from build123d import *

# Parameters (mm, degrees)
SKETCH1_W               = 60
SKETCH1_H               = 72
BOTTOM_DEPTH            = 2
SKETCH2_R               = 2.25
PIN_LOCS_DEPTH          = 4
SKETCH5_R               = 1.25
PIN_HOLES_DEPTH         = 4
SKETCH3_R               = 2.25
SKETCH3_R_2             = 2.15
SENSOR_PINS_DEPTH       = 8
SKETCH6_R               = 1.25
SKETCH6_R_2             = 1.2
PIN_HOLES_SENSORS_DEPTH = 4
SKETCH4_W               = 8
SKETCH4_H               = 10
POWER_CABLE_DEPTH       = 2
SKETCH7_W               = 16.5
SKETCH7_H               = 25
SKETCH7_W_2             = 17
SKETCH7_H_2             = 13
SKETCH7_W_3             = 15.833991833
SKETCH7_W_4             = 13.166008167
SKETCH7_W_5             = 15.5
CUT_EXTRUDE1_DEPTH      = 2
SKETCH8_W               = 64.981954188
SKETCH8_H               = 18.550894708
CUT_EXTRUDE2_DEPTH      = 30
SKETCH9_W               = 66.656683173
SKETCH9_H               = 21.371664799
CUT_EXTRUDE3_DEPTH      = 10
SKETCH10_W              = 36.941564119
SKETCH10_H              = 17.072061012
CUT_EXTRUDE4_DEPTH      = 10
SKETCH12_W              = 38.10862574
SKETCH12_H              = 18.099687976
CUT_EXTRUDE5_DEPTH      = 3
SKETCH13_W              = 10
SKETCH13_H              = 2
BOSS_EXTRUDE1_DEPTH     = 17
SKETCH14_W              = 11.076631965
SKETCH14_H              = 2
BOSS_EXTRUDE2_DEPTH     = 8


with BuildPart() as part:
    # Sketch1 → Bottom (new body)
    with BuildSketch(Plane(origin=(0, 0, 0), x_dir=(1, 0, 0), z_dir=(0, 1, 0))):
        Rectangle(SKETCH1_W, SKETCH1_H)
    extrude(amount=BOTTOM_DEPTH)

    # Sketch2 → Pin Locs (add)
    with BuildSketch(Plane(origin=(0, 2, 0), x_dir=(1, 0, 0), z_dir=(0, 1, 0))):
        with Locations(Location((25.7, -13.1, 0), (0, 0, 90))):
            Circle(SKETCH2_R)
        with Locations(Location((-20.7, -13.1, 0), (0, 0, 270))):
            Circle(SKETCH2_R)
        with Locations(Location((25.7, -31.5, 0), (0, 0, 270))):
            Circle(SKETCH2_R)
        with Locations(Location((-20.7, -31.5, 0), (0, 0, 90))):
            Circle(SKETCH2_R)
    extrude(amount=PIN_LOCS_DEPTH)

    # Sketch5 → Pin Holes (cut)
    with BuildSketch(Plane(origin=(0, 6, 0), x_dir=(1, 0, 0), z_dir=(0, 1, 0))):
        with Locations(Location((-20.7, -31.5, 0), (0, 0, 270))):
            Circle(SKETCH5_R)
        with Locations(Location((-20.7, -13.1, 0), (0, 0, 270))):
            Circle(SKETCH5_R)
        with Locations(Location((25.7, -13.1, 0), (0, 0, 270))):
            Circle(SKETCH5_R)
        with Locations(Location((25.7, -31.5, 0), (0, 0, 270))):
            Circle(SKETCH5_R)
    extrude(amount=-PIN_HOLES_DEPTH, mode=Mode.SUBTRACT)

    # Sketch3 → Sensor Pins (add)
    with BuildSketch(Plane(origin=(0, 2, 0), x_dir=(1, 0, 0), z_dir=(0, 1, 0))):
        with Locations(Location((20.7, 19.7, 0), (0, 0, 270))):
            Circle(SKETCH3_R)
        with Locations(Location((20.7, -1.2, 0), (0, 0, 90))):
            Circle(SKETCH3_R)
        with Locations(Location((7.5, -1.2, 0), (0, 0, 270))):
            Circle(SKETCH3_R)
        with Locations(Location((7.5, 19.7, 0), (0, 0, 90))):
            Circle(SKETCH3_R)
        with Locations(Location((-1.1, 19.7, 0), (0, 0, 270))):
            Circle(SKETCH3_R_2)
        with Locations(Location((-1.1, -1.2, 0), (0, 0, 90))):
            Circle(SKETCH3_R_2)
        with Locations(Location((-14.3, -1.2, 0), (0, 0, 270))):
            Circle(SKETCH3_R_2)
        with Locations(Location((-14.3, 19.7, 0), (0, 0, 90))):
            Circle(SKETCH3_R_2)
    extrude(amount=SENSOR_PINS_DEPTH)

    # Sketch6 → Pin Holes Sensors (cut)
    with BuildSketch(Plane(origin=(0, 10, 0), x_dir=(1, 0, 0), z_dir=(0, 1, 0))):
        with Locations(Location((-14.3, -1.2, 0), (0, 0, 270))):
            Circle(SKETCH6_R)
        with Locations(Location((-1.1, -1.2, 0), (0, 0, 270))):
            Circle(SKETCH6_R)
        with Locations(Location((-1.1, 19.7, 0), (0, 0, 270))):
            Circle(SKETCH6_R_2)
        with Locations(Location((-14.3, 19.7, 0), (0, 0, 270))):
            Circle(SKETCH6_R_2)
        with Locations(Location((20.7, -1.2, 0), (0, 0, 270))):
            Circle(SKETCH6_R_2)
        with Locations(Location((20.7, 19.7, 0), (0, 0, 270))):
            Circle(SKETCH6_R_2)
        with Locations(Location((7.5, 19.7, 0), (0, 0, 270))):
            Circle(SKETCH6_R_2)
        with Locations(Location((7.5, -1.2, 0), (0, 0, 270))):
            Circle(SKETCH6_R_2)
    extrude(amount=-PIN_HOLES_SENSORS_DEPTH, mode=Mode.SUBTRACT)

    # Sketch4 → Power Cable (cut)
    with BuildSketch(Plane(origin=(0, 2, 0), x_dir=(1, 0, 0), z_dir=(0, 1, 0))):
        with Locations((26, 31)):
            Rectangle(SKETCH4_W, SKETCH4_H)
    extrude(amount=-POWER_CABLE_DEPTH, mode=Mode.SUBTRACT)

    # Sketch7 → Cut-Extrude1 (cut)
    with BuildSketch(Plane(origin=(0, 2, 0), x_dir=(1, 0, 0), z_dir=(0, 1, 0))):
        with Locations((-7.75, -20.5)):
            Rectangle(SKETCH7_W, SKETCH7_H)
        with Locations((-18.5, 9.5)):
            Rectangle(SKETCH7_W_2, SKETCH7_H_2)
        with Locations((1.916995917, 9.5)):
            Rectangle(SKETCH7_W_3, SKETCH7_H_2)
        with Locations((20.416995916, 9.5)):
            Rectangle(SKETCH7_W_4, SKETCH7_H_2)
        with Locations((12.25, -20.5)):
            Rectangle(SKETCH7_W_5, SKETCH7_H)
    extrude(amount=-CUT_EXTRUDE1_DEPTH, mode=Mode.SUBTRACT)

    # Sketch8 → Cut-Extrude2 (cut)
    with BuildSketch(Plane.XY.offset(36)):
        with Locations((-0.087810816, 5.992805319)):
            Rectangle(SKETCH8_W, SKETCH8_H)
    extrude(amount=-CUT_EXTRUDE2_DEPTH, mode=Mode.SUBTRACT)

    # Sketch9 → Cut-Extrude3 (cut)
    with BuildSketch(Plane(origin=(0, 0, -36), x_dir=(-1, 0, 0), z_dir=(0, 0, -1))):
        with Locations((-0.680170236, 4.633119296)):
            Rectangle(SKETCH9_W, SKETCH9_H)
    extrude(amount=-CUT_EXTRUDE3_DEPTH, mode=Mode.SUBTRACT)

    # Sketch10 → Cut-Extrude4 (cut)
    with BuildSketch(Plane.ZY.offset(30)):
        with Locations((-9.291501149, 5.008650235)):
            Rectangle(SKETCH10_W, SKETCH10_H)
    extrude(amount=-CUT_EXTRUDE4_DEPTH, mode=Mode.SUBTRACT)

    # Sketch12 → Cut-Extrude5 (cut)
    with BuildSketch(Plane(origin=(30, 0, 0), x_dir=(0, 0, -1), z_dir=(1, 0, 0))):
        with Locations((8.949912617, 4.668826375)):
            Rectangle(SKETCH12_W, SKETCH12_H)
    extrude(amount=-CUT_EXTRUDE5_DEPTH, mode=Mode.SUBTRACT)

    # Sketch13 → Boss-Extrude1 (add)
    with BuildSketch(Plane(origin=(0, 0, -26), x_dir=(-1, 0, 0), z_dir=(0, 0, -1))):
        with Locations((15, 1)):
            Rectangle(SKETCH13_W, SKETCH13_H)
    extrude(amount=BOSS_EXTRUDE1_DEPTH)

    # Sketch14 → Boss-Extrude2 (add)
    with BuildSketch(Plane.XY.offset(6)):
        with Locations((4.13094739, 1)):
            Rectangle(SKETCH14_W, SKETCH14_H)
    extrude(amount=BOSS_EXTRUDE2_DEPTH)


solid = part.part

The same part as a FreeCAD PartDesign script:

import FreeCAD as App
import Part
import Sketcher
Q = App.Units.Quantity


def add_polygon(sketch, points):
    """Adds a closed chain of lines whose ends are joined by coincident constraints."""
    first, n = sketch.GeometryCount, len(points)
    for a, b in zip(points, points[1:] + points[:1]):
        sketch.addGeometry(Part.LineSegment(App.Vector(*a, 0), App.Vector(*b, 0)), False)
    for i in range(n):
        sketch.addConstraint(Sketcher.Constraint("Coincident", first + i, 2, first + (i + 1) % n, 1))

doc = App.newDocument("Part")
body = doc.addObject("PartDesign::Body", "Body")

sketch1 = body.newObject("Sketcher::SketchObject", "Sketch")
sketch1.AttachmentSupport = (doc.getObject("XZ_Plane"), [""])
sketch1.MapMode = "FlatFace"
add_polygon(sketch1, [(-30, -36), (-30, 36), (30, 36), (30, -36)])
sketch1.addConstraint([
    Sketcher.Constraint("Vertical", 0),
    Sketcher.Constraint("Horizontal", 1),
    Sketcher.Constraint("Vertical", 2),
    Sketcher.Constraint("Horizontal", 3),
    Sketcher.Constraint("Symmetric", 0, 2, 2, 2, -1, 1),
    Sketcher.Constraint("DistanceX", 1, 1, 1, 2, Q("60 mm")),
    Sketcher.Constraint("DistanceY", 0, 1, 0, 2, Q("72 mm")),
])
pad1 = body.newObject("PartDesign::Pad", "Pad")
pad1.Profile = sketch1
pad1.Length = 2
pad1.Reversed = True

sketch2 = body.newObject("Sketcher::SketchObject", "Sketch001")
sketch2.AttachmentSupport = (doc.getObject("XZ_Plane"), [""])
sketch2.MapMode = "FlatFace"
sketch2.AttachmentOffset = App.Placement(App.Vector(0, 0, -2), App.Rotation())
sketch2.addGeometry([
    Part.Circle(App.Vector(25.7, 13.1, 0), App.Vector(0, 0, 1), 2.2),
    Part.Circle(App.Vector(-20.7, 13.1, 0), App.Vector(0, 0, 1), 2.2),
    Part.Circle(App.Vector(25.7, 31.5, 0), App.Vector(0, 0, 1), 2.2),
    Part.Circle(App.Vector(-20.7, 31.5, 0), App.Vector(0, 0, 1), 2.2),
], False)
sketch2.addConstraint([
    Sketcher.Constraint("Equal", 0, 1),
    Sketcher.Constraint("Equal", 1, 2),
    Sketcher.Constraint("Equal", 2, 3),
    Sketcher.Constraint("Horizontal", 0, 3, 1, 3),
    Sketcher.Constraint("Horizontal", 2, 3, 3, 3),
    Sketcher.Constraint("Vertical", 0, 3, 2, 3),
    Sketcher.Constraint("Vertical", 1, 3, 3, 3),
    Sketcher.Constraint("Diameter", 0, Q("4.5 mm")),
    Sketcher.Constraint("DistanceX", -1, 1, 0, 3, Q("25.7 mm")),
    Sketcher.Constraint("DistanceY", -1, 1, 0, 3, Q("13.1 mm")),
    Sketcher.Constraint("DistanceX", 1, 3, -1, 1, Q("20.7 mm")),
    Sketcher.Constraint("DistanceY", -1, 1, 2, 3, Q("31.5 mm")),
])
pad2 = body.newObject("PartDesign::Pad", "Pad001")
pad2.Profile = sketch2
pad2.Length = 4
pad2.Reversed = True

sketch3 = body.newObject("Sketcher::SketchObject", "Sketch002")
sketch3.AttachmentSupport = (doc.getObject("XZ_Plane"), [""])
sketch3.MapMode = "FlatFace"
sketch3.AttachmentOffset = App.Placement(App.Vector(0, 0, -6), App.Rotation())
sketch3.addGeometry([
    Part.Circle(App.Vector(-20.7, 31.5, 0), App.Vector(0, 0, 1), 1.2),
    Part.Circle(App.Vector(-20.7, 13.1, 0), App.Vector(0, 0, 1), 1.2),
    Part.Circle(App.Vector(25.7, 13.1, 0), App.Vector(0, 0, 1), 1.2),
    Part.Circle(App.Vector(25.7, 31.5, 0), App.Vector(0, 0, 1), 1.2),
], False)
sketch3.addConstraint([
    Sketcher.Constraint("Equal", 0, 1),
    Sketcher.Constraint("Equal", 1, 2),
    Sketcher.Constraint("Equal", 2, 3),
    Sketcher.Constraint("Horizontal", 1, 3, 2, 3),
    Sketcher.Constraint("Horizontal", 0, 3, 3, 3),
    Sketcher.Constraint("Vertical", 0, 3, 1, 3),
    Sketcher.Constraint("Vertical", 2, 3, 3, 3),
    Sketcher.Constraint("Diameter", 0, Q("2.5 mm")),
    Sketcher.Constraint("DistanceX", 0, 3, -1, 1, Q("20.7 mm")),
    Sketcher.Constraint("DistanceY", -1, 1, 0, 3, Q("31.5 mm")),
    Sketcher.Constraint("DistanceY", -1, 1, 1, 3, Q("13.1 mm")),
    Sketcher.Constraint("DistanceX", -1, 1, 2, 3, Q("25.7 mm")),
])
pocket1 = body.newObject("PartDesign::Pocket", "Pocket")
pocket1.Profile = sketch3
pocket1.Length = 4
pocket1.Reversed = True

sketch4 = body.newObject("Sketcher::SketchObject", "Sketch003")
sketch4.AttachmentSupport = (doc.getObject("XZ_Plane"), [""])
sketch4.MapMode = "FlatFace"
sketch4.AttachmentOffset = App.Placement(App.Vector(0, 0, -2), App.Rotation())
sketch4.addGeometry([
    Part.Circle(App.Vector(20.7, -19.7, 0), App.Vector(0, 0, 1), 2.2),
    Part.Circle(App.Vector(20.7, 1.2, 0), App.Vector(0, 0, 1), 2.2),
    Part.Circle(App.Vector(7.5, 1.2, 0), App.Vector(0, 0, 1), 2.2),
    Part.Circle(App.Vector(7.5, -19.7, 0), App.Vector(0, 0, 1), 2.2),
    Part.Circle(App.Vector(-1.1, -19.7, 0), App.Vector(0, 0, 1), 2.1),
    Part.Circle(App.Vector(-1.1, 1.2, 0), App.Vector(0, 0, 1), 2.1),
    Part.Circle(App.Vector(-14.3, 1.2, 0), App.Vector(0, 0, 1), 2.1),
    Part.Circle(App.Vector(-14.3, -19.7, 0), App.Vector(0, 0, 1), 2.1),
], False)
sketch4.addConstraint([
    Sketcher.Constraint("Equal", 0, 1),
    Sketcher.Constraint("Equal", 1, 2),
    Sketcher.Constraint("Equal", 2, 3),
    Sketcher.Constraint("Equal", 4, 5),
    Sketcher.Constraint("Equal", 5, 6),
    Sketcher.Constraint("Equal", 6, 7),
    Sketcher.Constraint("Horizontal", 1, 3, 2, 3),
    Sketcher.Constraint("Horizontal", 0, 3, 3, 3),
    Sketcher.Constraint("Horizontal", 3, 3, 4, 3),
    Sketcher.Constraint("Horizontal", 2, 3, 5, 3),
    Sketcher.Constraint("Horizontal", 5, 3, 6, 3),
    Sketcher.Constraint("Horizontal", 4, 3, 7, 3),
    Sketcher.Constraint("Vertical", 0, 3, 1, 3),
    Sketcher.Constraint("Vertical", 2, 3, 3, 3),
    Sketcher.Constraint("Vertical", 4, 3, 5, 3),
    Sketcher.Constraint("Vertical", 6, 3, 7, 3),
    Sketcher.Constraint("Diameter", 0, Q("4.5 mm")),
    Sketcher.Constraint("Diameter", 4, Q("4.3 mm")),
    Sketcher.Constraint("DistanceX", 6, 3, 1, 3, Q("35 mm")),
    Sketcher.Constraint("DistanceX", -1, 1, 0, 3, Q("20.7 mm")),
    Sketcher.Constraint("DistanceY", 0, 3, -1, 1, Q("19.7 mm")),
    Sketcher.Constraint("DistanceY", -1, 1, 1, 3, Q("1.2 mm")),
    Sketcher.Constraint("DistanceX", -1, 1, 2, 3, Q("7.5 mm")),
    Sketcher.Constraint("DistanceX", 4, 3, -1, 1, Q("1.1 mm")),
])
pad3 = body.newObject("PartDesign::Pad", "Pad002")
pad3.Profile = sketch4
pad3.Length = 8
pad3.Reversed = True

sketch5 = body.newObject("Sketcher::SketchObject", "Sketch004")
sketch5.AttachmentSupport = (doc.getObject("XZ_Plane"), [""])
sketch5.MapMode = "FlatFace"
sketch5.AttachmentOffset = App.Placement(App.Vector(0, 0, -10), App.Rotation())
sketch5.addGeometry([
    Part.Circle(App.Vector(-14.3, 1.2, 0), App.Vector(0, 0, 1), 1.2),
    Part.Circle(App.Vector(-1.1, 1.2, 0), App.Vector(0, 0, 1), 1.2),
    Part.Circle(App.Vector(-1.1, -19.7, 0), App.Vector(0, 0, 1), 1.2),
    Part.Circle(App.Vector(-14.3, -19.7, 0), App.Vector(0, 0, 1), 1.2),
    Part.Circle(App.Vector(20.7, 1.2, 0), App.Vector(0, 0, 1), 1.2),
    Part.Circle(App.Vector(20.7, -19.7, 0), App.Vector(0, 0, 1), 1.2),
    Part.Circle(App.Vector(7.5, -19.7, 0), App.Vector(0, 0, 1), 1.2),
    Part.Circle(App.Vector(7.5, 1.2, 0), App.Vector(0, 0, 1), 1.2),
], False)
sketch5.addConstraint([
    Sketcher.Constraint("Equal", 0, 1),
    Sketcher.Constraint("Equal", 2, 3),
    Sketcher.Constraint("Equal", 3, 4),
    Sketcher.Constraint("Equal", 4, 5),
    Sketcher.Constraint("Equal", 5, 6),
    Sketcher.Constraint("Equal", 6, 7),
    Sketcher.Constraint("Horizontal", 0, 3, 1, 3),
    Sketcher.Constraint("Horizontal", 2, 3, 3, 3),
    Sketcher.Constraint("Horizontal", 1, 3, 4, 3),
    Sketcher.Constraint("Horizontal", 3, 3, 5, 3),
    Sketcher.Constraint("Horizontal", 5, 3, 6, 3),
    Sketcher.Constraint("Horizontal", 4, 3, 7, 3),
    Sketcher.Constraint("Vertical", 1, 3, 2, 3),
    Sketcher.Constraint("Vertical", 0, 3, 3, 3),
    Sketcher.Constraint("Vertical", 4, 3, 5, 3),
    Sketcher.Constraint("Vertical", 6, 3, 7, 3),
    Sketcher.Constraint("Diameter", 0, Q("2.5 mm")),
    Sketcher.Constraint("Diameter", 2, Q("2.4 mm")),
    Sketcher.Constraint("DistanceX", 0, 3, 4, 3, Q("35 mm")),
    Sketcher.Constraint("DistanceX", 0, 3, -1, 1, Q("14.3 mm")),
    Sketcher.Constraint("DistanceY", -1, 1, 0, 3, Q("1.2 mm")),
    Sketcher.Constraint("DistanceX", 1, 3, -1, 1, Q("1.1 mm")),
    Sketcher.Constraint("DistanceY", 2, 3, -1, 1, Q("19.7 mm")),
    Sketcher.Constraint("DistanceX", -1, 1, 6, 3, Q("7.5 mm")),
])
pocket2 = body.newObject("PartDesign::Pocket", "Pocket001")
pocket2.Profile = sketch5
pocket2.Length = 4
pocket2.Reversed = True

sketch6 = body.newObject("Sketcher::SketchObject", "Sketch005")
sketch6.AttachmentSupport = (doc.getObject("XZ_Plane"), [""])
sketch6.MapMode = "FlatFace"
sketch6.AttachmentOffset = App.Placement(App.Vector(0, 0, -2), App.Rotation())
add_polygon(sketch6, [(22, -36), (22, -26), (30, -26), (30, -36)])
sketch6.addConstraint([
    Sketcher.Constraint("Vertical", 0),
    Sketcher.Constraint("Horizontal", 1),
    Sketcher.Constraint("Vertical", 2),
    Sketcher.Constraint("Horizontal", 3),
    Sketcher.Constraint("DistanceX", 1, 1, 1, 2, Q("8 mm")),
    Sketcher.Constraint("DistanceY", 0, 1, 0, 2, Q("10 mm")),
    Sketcher.Constraint("DistanceX", -1, 1, 0, 2, Q("22 mm")),
    Sketcher.Constraint("DistanceY", 0, 2, -1, 1, Q("26 mm")),
])
pocket3 = body.newObject("PartDesign::Pocket", "Pocket002")
pocket3.Profile = sketch6
pocket3.Length = 2
pocket3.Reversed = True

sketch7 = body.newObject("Sketcher::SketchObject", "Sketch006")
sketch7.AttachmentSupport = (doc.getObject("XZ_Plane"), [""])
sketch7.MapMode = "FlatFace"
sketch7.AttachmentOffset = App.Placement(App.Vector(0, 0, -2), App.Rotation())
add_polygon(sketch7, [(-16, 8), (-16, 33), (0, 33), (0, 8)])
add_polygon(sketch7, [(-27, -16), (-27, -3), (-10, -3), (-10, -16)])
add_polygon(sketch7, [(-6, -16), (-6, -3), (10, -3), (10, -16)])
add_polygon(sketch7, [(14, -16), (14, -3), (27, -3), (27, -16)])
add_polygon(sketch7, [(4, 8), (4, 33), (20, 33), (20, 8)])
sketch7.addConstraint([
    Sketcher.Constraint("Vertical", 0),
    Sketcher.Constraint("Horizontal", 1),
    Sketcher.Constraint("Vertical", 2),
    Sketcher.Constraint("Horizontal", 3),
    Sketcher.Constraint("Vertical", 4),
    Sketcher.Constraint("Horizontal", 5),
    Sketcher.Constraint("Vertical", 6),
    Sketcher.Constraint("Horizontal", 7),
    Sketcher.Constraint("Vertical", 8),
    Sketcher.Constraint("Horizontal", 9),
    Sketcher.Constraint("Vertical", 10),
    Sketcher.Constraint("Horizontal", 11),
    Sketcher.Constraint("Vertical", 12),
    Sketcher.Constraint("Horizontal", 13),
    Sketcher.Constraint("Vertical", 14),
    Sketcher.Constraint("Horizontal", 15),
    Sketcher.Constraint("Vertical", 16),
    Sketcher.Constraint("Horizontal", 17),
    Sketcher.Constraint("Vertical", 18),
    Sketcher.Constraint("Horizontal", 19),
    Sketcher.Constraint("Symmetric", 4, 2, 13, 2, -2),
    Sketcher.Constraint("Horizontal", 5, 2, 8, 2),
    Sketcher.Constraint("Horizontal", 7, 2, 10, 2),
    Sketcher.Constraint("Horizontal", 11, 2, 14, 2),
    Sketcher.Constraint("Horizontal", 1, 2, 16, 2),
    Sketcher.Constraint("Horizontal", 3, 2, 18, 2),
    Sketcher.Constraint("DistanceX", 5, 1, 5, 2, Q("17 mm")),
    Sketcher.Constraint("DistanceY", 0, 1, 0, 2, Q("25 mm")),
    Sketcher.Constraint("DistanceY", 4, 1, 4, 2, Q("13 mm")),
    Sketcher.Constraint("DistanceX", 1, 1, 1, 2, Q("16.5 mm")),
    Sketcher.Constraint("DistanceX", 17, 1, 17, 2, Q("15.5 mm")),
    Sketcher.Constraint("DistanceX", 0, 2, -1, 1, Q("16 mm")),
    Sketcher.Constraint("DistanceY", -1, 1, 0, 2, Q("33 mm")),
    Sketcher.Constraint("DistanceX", 4, 2, -1, 1, Q("27 mm")),
    Sketcher.Constraint("DistanceY", 4, 2, -1, 1, Q("3 mm")),
    Sketcher.Constraint("DistanceX", 8, 2, -1, 1, Q("6 mm")),
    Sketcher.Constraint("DistanceX", -1, 1, 17, 2, Q("20 mm")),
    Sketcher.Constraint("DistanceX", 9, 2, 12, 2, Q("4 mm")),
    Sketcher.Constraint("DistanceX", 9, 1, 9, 2, Q("15.833992 mm")),
])
pocket4 = body.newObject("PartDesign::Pocket", "Pocket003")
pocket4.Profile = sketch7
pocket4.Length = 2
pocket4.Reversed = True

sketch8 = body.newObject("Sketcher::SketchObject", "Sketch007")
sketch8.AttachmentSupport = (doc.getObject("XY_Plane"), [""])
sketch8.MapMode = "FlatFace"
sketch8.AttachmentOffset = App.Placement(App.Vector(0, 0, 36), App.Rotation())
add_polygon(sketch8, [(-33, 15), (-33, -3), (32, -3), (32, 15)])
sketch8.addConstraint([
    Sketcher.Constraint("Vertical", 0),
    Sketcher.Constraint("Horizontal", 1),
    Sketcher.Constraint("Vertical", 2),
    Sketcher.Constraint("Horizontal", 3),
    Sketcher.Constraint("DistanceX", 1, 1, 1, 2, Q("64.981954 mm")),
    Sketcher.Constraint("DistanceY", 0, 2, 0, 1, Q("18.550895 mm")),
    Sketcher.Constraint("DistanceX", 0, 2, -1, 1, Q("32.578788 mm")),
    Sketcher.Constraint("DistanceY", 0, 2, -1, 1, Q("3.282642 mm")),
])
pocket5 = body.newObject("PartDesign::Pocket", "Pocket004")
pocket5.Profile = sketch8
pocket5.Length = 30

sketch9 = body.newObject("Sketcher::SketchObject", "Sketch008")
sketch9.AttachmentSupport = (doc.getObject("XY_Plane"), [""])
sketch9.MapMode = "FlatFace"
sketch9.AttachmentOffset = App.Placement(App.Vector(0, 0, -36), App.Rotation())
add_polygon(sketch9, [(34, 15), (34, -6), (-33, -6), (-33, 15)])
sketch9.addConstraint([
    Sketcher.Constraint("Vertical", 0),
    Sketcher.Constraint("Horizontal", 1),
    Sketcher.Constraint("Vertical", 2),
    Sketcher.Constraint("Horizontal", 3),
    Sketcher.Constraint("DistanceX", 1, 2, 1, 1, Q("66.656683 mm")),
    Sketcher.Constraint("DistanceY", 0, 2, 0, 1, Q("21.371665 mm")),
    Sketcher.Constraint("DistanceX", -1, 1, 0, 2, Q("34.008512 mm")),
    Sketcher.Constraint("DistanceY", -1, 1, 2, 2, Q("15.318952 mm")),
])
pocket6 = body.newObject("PartDesign::Pocket", "Pocket005")
pocket6.Profile = sketch9
pocket6.Length = 10
pocket6.Reversed = True

sketch10 = body.newObject("Sketcher::SketchObject", "Sketch009")
sketch10.AttachmentSupport = (doc.getObject("YZ_Plane"), [""])
sketch10.MapMode = "FlatFace"
sketch10.AttachmentOffset = App.Placement(App.Vector(0, 0, -30), App.Rotation())
add_polygon(sketch10, [(14, -28), (-4, -28), (-4, 9), (14, 9)])
sketch10.addConstraint([
    Sketcher.Constraint("Horizontal", 0),
    Sketcher.Constraint("Vertical", 1),
    Sketcher.Constraint("Horizontal", 2),
    Sketcher.Constraint("Vertical", 3),
    Sketcher.Constraint("DistanceX", 0, 2, 0, 1, Q("17.072061 mm")),
    Sketcher.Constraint("DistanceY", 1, 1, 1, 2, Q("36.941564 mm")),
    Sketcher.Constraint("DistanceX", 0, 2, -1, 1, Q("3.52738 mm")),
    Sketcher.Constraint("DistanceY", -1, 1, 1, 2, Q("9.179281 mm")),
])
pocket7 = body.newObject("PartDesign::Pocket", "Pocket006")
pocket7.Profile = sketch10
pocket7.Length = 10
pocket7.Reversed = True

sketch11 = body.newObject("Sketcher::SketchObject", "Sketch010")
sketch11.AttachmentSupport = (doc.getObject("YZ_Plane"), [""])
sketch11.MapMode = "FlatFace"
sketch11.AttachmentOffset = App.Placement(App.Vector(0, 0, 30), App.Rotation())
add_polygon(sketch11, [(14, 10), (-4, 10), (-4, -28), (14, -28)])
sketch11.addConstraint([
    Sketcher.Constraint("Horizontal", 0),
    Sketcher.Constraint("Vertical", 1),
    Sketcher.Constraint("Horizontal", 2),
    Sketcher.Constraint("Vertical", 3),
    Sketcher.Constraint("DistanceY", -1, 1, 0, 2, Q("10.1044 mm")),
    Sketcher.Constraint("DistanceX", 0, 2, 0, 1, Q("18.099688 mm")),
    Sketcher.Constraint("DistanceY", 1, 2, 1, 1, Q("38.108626 mm")),
    Sketcher.Constraint("DistanceX", -1, 1, 2, 2, Q("13.71867 mm")),
])
pocket8 = body.newObject("PartDesign::Pocket", "Pocket007")
pocket8.Profile = sketch11
pocket8.Length = 3

sketch12 = body.newObject("Sketcher::SketchObject", "Sketch011")
sketch12.AttachmentSupport = (doc.getObject("XY_Plane"), [""])
sketch12.MapMode = "FlatFace"
sketch12.AttachmentOffset = App.Placement(App.Vector(0, 0, -26), App.Rotation())
add_polygon(sketch12, [(-10, 2), (-10, 0), (-20, 0), (-20, 2)])
sketch12.addConstraint([
    Sketcher.Constraint("Vertical", 0),
    Sketcher.Constraint("Horizontal", 1),
    Sketcher.Constraint("Vertical", 2),
    Sketcher.Constraint("Horizontal", 3),
    Sketcher.Constraint("PointOnObject", 0, 2, -1),
    Sketcher.Constraint("DistanceX", 1, 2, 1, 1, Q("10 mm")),
    Sketcher.Constraint("DistanceY", 0, 2, 0, 1, Q("2 mm")),
    Sketcher.Constraint("DistanceX", 0, 2, -1, 1, Q("10 mm")),
])
pad4 = body.newObject("PartDesign::Pad", "Pad003")
pad4.Profile = sketch12
pad4.Length = 17
pad4.Reversed = True

sketch13 = body.newObject("Sketcher::SketchObject", "Sketch012")
sketch13.AttachmentSupport = (doc.getObject("XY_Plane"), [""])
sketch13.MapMode = "FlatFace"
sketch13.AttachmentOffset = App.Placement(App.Vector(0, 0, 6), App.Rotation())
add_polygon(sketch13, [(-1.4, 2), (-1.4, 0), (9.7, 0), (9.7, 2)])
sketch13.addConstraint([
    Sketcher.Constraint("Vertical", 0),
    Sketcher.Constraint("Horizontal", 1),
    Sketcher.Constraint("Vertical", 2),
    Sketcher.Constraint("Horizontal", 3),
    Sketcher.Constraint("PointOnObject", 0, 2, -1),
    Sketcher.Constraint("DistanceY", 0, 2, 0, 1, Q("2 mm")),
    Sketcher.Constraint("DistanceX", 1, 1, 1, 2, Q("11.076632 mm")),
    Sketcher.Constraint("DistanceX", 0, 2, -1, 1, Q("1.407369 mm")),
])
pad5 = body.newObject("PartDesign::Pad", "Pad004")
pad5.Profile = sketch13
pad5.Length = 8

doc.recompute()
